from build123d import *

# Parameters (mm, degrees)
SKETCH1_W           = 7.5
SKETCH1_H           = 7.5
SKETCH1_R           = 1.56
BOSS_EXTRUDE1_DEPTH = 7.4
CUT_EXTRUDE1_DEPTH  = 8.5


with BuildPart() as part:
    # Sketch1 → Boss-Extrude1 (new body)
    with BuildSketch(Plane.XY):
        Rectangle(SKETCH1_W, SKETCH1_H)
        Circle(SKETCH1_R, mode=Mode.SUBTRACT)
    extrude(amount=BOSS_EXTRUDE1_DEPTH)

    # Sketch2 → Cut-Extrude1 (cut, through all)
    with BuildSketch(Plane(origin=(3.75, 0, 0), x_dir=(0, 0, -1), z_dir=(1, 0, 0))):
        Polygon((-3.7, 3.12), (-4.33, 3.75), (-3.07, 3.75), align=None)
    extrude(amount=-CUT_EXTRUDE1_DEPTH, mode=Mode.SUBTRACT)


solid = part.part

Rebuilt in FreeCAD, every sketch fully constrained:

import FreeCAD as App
import Part
import Sketcher
from FreeCAD import Vector

doc = App.newDocument("Part")
body = doc.addObject("PartDesign::Body", "Body")

sketch1 = body.newObject("Sketcher::SketchObject", "Sketch")
sketch1.AttachmentSupport = (doc.getObject("XY_Plane"), [""])
sketch1.MapMode = "FlatFace"
sketch1.addGeometry(Part.LineSegment(Vector(-3.8, 3.8, 0), Vector(-3.8, -3.8, 0)), False)
sketch1.addGeometry(Part.LineSegment(Vector(-3.8, -3.8, 0), Vector(3.8, -3.8, 0)), False)
sketch1.addGeometry(Part.LineSegment(Vector(3.8, -3.8, 0), Vector(3.8, 3.8, 0)), False)
sketch1.addGeometry(Part.LineSegment(Vector(3.8, 3.8, 0), Vector(-3.8, 3.8, 0)), False)
sketch1.addGeometry(Part.Circle(Vector(0, 0, 0), Vector(0, 0, 1), 1.6), False)
sketch1.addConstraint(Sketcher.Constraint("Coincident", 0, 2, 1, 1))
sketch1.addConstraint(Sketcher.Constraint("Coincident", 1, 2, 2, 1))
sketch1.addConstraint(Sketcher.Constraint("Coincident", 2, 2, 3, 1))
sketch1.addConstraint(Sketcher.Constraint("Coincident", 3, 2, 0, 1))
sketch1.addConstraint(Sketcher.Constraint("Vertical", 0))
sketch1.addConstraint(Sketcher.Constraint("Horizontal", 1))
sketch1.addConstraint(Sketcher.Constraint("Vertical", 2))
sketch1.addConstraint(Sketcher.Constraint("Horizontal", 3))
sketch1.addConstraint(Sketcher.Constraint("Coincident", 4, 3, -1, 1))
sketch1.addConstraint(Sketcher.Constraint("Symmetric", 0, 2, 2, 2, -1, 1))
sketch1.addConstraint(Sketcher.Constraint("Equal", 3, 0))
sketch1.addConstraint(Sketcher.Constraint("Diameter", 4, 3.12))
sketch1.addConstraint(Sketcher.Constraint("DistanceX", 1, 1, 1, 2, 7.5))
pad1 = body.newObject("PartDesign::Pad", "Pad")
pad1.Profile = sketch1
pad1.Length = 7.4

sketch2 = body.newObject("Sketcher::SketchObject", "Sketch001")
sketch2.AttachmentSupport = (doc.getObject("YZ_Plane"), [""])
sketch2.MapMode = "FlatFace"
sketch2.AttachmentOffset = App.Placement(Vector(0, 0, 3.75), App.Rotation())
sketch2.addGeometry(Part.LineSegment(Vector(3.8, 4.3, 0), Vector(3.1, 3.7, 0)), False)
sketch2.addGeometry(Part.LineSegment(Vector(3.1, 3.7, 0), Vector(3.8, 3.1, 0)), False)
sketch2.addGeometry(Part.LineSegment(Vector(3.8, 3.1, 0), Vector(3.8, 4.3, 0)), False)
sketch2.addConstraint(Sketcher.Constraint("Coincident", 0, 2, 1, 1))
sketch2.addConstraint(Sketcher.Constraint("Coincident", 1, 2, 2, 1))
sketch2.addConstraint(Sketcher.Constraint("Coincident", 2, 2, 0, 1))
sketch2.addConstraint(Sketcher.Constraint("Vertical", 2))
sketch2.addConstraint(Sketcher.Constraint("Perpendicular", 0, 1))
sketch2.addConstraint(Sketcher.Constraint("Equal", 0, 1))
sketch2.addConstraint(Sketcher.Constraint("DistanceY", 2, 1, 2, 2, 1.26))
sketch2.addConstraint(Sketcher.Constraint("DistanceY", -1, 1, 0, 2, 3.7))
sketch2.addConstraint(Sketcher.Constraint("DistanceX", -1, 1, 0, 2, 3.12))
pocket1 = body.newObject("PartDesign::Pocket", "Pocket")
pocket1.Profile = sketch2
pocket1.Type = "ThroughAll"

doc.recompute()
